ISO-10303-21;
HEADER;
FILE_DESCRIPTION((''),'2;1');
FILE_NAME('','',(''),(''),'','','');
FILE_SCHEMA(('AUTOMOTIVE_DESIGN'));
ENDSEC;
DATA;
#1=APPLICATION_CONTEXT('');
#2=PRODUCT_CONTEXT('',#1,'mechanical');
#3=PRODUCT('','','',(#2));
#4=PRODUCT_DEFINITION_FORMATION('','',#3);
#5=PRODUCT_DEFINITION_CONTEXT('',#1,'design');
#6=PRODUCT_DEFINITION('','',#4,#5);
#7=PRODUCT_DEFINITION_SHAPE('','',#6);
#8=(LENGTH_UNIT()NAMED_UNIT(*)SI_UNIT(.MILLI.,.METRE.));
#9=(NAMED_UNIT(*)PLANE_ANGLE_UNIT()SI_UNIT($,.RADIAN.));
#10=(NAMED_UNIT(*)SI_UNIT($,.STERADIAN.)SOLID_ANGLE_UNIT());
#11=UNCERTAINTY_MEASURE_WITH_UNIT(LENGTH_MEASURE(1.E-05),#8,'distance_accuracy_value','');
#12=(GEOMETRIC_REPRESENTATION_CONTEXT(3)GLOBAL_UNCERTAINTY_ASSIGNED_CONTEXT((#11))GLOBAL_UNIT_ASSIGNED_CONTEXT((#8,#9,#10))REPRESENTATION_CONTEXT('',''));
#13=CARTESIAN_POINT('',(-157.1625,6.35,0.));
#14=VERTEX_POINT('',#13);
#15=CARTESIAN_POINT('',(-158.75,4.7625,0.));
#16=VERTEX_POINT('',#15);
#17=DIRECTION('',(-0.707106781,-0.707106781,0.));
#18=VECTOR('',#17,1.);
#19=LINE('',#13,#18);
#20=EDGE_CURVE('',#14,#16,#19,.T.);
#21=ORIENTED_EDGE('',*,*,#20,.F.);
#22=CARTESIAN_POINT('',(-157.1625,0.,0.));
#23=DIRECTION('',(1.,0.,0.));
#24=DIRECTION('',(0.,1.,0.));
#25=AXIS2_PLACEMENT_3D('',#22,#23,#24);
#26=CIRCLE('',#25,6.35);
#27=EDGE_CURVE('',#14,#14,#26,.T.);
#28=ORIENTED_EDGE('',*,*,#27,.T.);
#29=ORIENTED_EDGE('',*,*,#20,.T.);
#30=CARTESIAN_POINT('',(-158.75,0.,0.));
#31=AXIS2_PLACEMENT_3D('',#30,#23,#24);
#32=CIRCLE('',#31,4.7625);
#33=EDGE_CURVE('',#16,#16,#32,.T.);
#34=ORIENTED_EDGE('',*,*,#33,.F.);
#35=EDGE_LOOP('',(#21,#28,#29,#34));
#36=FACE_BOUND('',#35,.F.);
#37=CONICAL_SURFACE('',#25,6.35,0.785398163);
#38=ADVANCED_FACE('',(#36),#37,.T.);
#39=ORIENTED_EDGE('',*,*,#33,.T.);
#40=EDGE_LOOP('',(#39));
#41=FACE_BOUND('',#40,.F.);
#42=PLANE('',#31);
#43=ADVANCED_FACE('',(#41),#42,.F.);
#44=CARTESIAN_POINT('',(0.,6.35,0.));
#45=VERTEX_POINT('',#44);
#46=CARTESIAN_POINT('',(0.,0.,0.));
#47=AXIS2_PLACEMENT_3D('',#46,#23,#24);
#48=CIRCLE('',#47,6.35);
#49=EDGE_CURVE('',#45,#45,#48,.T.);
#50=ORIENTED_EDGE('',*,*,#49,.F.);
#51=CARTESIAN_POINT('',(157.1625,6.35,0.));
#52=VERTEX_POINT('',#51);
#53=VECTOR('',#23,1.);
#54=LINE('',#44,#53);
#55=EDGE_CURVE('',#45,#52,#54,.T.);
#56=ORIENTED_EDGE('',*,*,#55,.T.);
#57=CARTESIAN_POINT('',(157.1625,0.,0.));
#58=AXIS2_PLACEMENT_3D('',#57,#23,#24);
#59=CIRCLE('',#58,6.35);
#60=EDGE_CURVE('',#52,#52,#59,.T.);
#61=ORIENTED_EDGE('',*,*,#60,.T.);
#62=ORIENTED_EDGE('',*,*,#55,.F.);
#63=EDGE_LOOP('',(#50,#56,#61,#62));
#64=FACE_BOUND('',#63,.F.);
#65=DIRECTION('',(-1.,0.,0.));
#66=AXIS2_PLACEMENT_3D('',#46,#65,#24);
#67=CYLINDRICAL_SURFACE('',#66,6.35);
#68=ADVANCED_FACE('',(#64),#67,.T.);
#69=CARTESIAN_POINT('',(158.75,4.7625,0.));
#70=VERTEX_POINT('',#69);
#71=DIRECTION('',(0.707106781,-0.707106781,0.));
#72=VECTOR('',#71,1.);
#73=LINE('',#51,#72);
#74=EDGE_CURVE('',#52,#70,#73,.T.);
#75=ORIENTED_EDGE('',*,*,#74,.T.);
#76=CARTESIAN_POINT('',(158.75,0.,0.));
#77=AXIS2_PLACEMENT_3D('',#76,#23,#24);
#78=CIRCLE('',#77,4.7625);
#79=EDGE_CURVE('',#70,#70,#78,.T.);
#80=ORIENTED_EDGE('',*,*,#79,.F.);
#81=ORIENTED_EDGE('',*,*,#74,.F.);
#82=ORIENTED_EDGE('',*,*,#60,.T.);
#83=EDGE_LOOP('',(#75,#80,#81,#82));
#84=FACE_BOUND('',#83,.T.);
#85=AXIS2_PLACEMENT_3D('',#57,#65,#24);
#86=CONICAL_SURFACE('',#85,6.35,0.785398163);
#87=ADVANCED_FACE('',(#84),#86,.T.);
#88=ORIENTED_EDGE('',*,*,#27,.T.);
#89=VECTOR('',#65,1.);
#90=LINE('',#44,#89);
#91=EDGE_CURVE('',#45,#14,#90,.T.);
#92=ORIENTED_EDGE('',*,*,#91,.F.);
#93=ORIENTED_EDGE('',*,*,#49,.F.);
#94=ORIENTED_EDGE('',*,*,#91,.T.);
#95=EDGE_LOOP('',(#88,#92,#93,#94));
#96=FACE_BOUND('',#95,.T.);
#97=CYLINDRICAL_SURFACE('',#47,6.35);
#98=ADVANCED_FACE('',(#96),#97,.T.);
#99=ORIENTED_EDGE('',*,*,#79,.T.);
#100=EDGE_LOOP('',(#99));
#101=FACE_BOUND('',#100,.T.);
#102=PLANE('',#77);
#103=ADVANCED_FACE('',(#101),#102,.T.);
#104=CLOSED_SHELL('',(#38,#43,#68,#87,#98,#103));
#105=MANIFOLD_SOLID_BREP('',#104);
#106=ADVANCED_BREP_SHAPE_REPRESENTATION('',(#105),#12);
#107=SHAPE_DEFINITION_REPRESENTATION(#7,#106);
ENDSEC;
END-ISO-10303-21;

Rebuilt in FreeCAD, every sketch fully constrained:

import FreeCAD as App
import Part
import Sketcher
from FreeCAD import Vector
Q = App.Units.Quantity


def edges_at(feature, points):
    """Names of the edges that pass closest to the given points."""
    edges = feature.Shape.Edges
    near = lambda p: min(range(len(edges)), key=lambda i: edges[i].distToShape(Part.Vertex(*p))[0])
    return sorted({f"Edge{near(p) + 1}" for p in points})

doc = App.newDocument("Part")
body = doc.addObject("PartDesign::Body", "Body")

sketch1 = body.newObject("Sketcher::SketchObject", "Sketch")
sketch1.AttachmentSupport = (doc.getObject("YZ_Plane"), [""])
sketch1.MapMode = "FlatFace"
sketch1.addGeometry(Part.Circle(Vector(0, 0, 0), Vector(0, 0, 1), 6), False)
sketch1.addConstraint(Sketcher.Constraint("Coincident", 0, 3, -1, 1))
sketch1.addConstraint(Sketcher.Constraint("Diameter", 0, Q("0.5 in")))
pad1 = body.newObject("PartDesign::Pad", "Pad")
pad1.Profile = sketch1
pad1.Length = Q("12.5 in")
pad1.Midplane = True
doc.recompute()

chamfer = body.newObject("PartDesign::Chamfer", "Chamfer")
chamfer.Base = (pad1, edges_at(pad1, [(158.75, -6.35, 0), (-158.75, -6.35, 0)]))
chamfer.Size = Q("0.0625 in")

doc.recompute()
